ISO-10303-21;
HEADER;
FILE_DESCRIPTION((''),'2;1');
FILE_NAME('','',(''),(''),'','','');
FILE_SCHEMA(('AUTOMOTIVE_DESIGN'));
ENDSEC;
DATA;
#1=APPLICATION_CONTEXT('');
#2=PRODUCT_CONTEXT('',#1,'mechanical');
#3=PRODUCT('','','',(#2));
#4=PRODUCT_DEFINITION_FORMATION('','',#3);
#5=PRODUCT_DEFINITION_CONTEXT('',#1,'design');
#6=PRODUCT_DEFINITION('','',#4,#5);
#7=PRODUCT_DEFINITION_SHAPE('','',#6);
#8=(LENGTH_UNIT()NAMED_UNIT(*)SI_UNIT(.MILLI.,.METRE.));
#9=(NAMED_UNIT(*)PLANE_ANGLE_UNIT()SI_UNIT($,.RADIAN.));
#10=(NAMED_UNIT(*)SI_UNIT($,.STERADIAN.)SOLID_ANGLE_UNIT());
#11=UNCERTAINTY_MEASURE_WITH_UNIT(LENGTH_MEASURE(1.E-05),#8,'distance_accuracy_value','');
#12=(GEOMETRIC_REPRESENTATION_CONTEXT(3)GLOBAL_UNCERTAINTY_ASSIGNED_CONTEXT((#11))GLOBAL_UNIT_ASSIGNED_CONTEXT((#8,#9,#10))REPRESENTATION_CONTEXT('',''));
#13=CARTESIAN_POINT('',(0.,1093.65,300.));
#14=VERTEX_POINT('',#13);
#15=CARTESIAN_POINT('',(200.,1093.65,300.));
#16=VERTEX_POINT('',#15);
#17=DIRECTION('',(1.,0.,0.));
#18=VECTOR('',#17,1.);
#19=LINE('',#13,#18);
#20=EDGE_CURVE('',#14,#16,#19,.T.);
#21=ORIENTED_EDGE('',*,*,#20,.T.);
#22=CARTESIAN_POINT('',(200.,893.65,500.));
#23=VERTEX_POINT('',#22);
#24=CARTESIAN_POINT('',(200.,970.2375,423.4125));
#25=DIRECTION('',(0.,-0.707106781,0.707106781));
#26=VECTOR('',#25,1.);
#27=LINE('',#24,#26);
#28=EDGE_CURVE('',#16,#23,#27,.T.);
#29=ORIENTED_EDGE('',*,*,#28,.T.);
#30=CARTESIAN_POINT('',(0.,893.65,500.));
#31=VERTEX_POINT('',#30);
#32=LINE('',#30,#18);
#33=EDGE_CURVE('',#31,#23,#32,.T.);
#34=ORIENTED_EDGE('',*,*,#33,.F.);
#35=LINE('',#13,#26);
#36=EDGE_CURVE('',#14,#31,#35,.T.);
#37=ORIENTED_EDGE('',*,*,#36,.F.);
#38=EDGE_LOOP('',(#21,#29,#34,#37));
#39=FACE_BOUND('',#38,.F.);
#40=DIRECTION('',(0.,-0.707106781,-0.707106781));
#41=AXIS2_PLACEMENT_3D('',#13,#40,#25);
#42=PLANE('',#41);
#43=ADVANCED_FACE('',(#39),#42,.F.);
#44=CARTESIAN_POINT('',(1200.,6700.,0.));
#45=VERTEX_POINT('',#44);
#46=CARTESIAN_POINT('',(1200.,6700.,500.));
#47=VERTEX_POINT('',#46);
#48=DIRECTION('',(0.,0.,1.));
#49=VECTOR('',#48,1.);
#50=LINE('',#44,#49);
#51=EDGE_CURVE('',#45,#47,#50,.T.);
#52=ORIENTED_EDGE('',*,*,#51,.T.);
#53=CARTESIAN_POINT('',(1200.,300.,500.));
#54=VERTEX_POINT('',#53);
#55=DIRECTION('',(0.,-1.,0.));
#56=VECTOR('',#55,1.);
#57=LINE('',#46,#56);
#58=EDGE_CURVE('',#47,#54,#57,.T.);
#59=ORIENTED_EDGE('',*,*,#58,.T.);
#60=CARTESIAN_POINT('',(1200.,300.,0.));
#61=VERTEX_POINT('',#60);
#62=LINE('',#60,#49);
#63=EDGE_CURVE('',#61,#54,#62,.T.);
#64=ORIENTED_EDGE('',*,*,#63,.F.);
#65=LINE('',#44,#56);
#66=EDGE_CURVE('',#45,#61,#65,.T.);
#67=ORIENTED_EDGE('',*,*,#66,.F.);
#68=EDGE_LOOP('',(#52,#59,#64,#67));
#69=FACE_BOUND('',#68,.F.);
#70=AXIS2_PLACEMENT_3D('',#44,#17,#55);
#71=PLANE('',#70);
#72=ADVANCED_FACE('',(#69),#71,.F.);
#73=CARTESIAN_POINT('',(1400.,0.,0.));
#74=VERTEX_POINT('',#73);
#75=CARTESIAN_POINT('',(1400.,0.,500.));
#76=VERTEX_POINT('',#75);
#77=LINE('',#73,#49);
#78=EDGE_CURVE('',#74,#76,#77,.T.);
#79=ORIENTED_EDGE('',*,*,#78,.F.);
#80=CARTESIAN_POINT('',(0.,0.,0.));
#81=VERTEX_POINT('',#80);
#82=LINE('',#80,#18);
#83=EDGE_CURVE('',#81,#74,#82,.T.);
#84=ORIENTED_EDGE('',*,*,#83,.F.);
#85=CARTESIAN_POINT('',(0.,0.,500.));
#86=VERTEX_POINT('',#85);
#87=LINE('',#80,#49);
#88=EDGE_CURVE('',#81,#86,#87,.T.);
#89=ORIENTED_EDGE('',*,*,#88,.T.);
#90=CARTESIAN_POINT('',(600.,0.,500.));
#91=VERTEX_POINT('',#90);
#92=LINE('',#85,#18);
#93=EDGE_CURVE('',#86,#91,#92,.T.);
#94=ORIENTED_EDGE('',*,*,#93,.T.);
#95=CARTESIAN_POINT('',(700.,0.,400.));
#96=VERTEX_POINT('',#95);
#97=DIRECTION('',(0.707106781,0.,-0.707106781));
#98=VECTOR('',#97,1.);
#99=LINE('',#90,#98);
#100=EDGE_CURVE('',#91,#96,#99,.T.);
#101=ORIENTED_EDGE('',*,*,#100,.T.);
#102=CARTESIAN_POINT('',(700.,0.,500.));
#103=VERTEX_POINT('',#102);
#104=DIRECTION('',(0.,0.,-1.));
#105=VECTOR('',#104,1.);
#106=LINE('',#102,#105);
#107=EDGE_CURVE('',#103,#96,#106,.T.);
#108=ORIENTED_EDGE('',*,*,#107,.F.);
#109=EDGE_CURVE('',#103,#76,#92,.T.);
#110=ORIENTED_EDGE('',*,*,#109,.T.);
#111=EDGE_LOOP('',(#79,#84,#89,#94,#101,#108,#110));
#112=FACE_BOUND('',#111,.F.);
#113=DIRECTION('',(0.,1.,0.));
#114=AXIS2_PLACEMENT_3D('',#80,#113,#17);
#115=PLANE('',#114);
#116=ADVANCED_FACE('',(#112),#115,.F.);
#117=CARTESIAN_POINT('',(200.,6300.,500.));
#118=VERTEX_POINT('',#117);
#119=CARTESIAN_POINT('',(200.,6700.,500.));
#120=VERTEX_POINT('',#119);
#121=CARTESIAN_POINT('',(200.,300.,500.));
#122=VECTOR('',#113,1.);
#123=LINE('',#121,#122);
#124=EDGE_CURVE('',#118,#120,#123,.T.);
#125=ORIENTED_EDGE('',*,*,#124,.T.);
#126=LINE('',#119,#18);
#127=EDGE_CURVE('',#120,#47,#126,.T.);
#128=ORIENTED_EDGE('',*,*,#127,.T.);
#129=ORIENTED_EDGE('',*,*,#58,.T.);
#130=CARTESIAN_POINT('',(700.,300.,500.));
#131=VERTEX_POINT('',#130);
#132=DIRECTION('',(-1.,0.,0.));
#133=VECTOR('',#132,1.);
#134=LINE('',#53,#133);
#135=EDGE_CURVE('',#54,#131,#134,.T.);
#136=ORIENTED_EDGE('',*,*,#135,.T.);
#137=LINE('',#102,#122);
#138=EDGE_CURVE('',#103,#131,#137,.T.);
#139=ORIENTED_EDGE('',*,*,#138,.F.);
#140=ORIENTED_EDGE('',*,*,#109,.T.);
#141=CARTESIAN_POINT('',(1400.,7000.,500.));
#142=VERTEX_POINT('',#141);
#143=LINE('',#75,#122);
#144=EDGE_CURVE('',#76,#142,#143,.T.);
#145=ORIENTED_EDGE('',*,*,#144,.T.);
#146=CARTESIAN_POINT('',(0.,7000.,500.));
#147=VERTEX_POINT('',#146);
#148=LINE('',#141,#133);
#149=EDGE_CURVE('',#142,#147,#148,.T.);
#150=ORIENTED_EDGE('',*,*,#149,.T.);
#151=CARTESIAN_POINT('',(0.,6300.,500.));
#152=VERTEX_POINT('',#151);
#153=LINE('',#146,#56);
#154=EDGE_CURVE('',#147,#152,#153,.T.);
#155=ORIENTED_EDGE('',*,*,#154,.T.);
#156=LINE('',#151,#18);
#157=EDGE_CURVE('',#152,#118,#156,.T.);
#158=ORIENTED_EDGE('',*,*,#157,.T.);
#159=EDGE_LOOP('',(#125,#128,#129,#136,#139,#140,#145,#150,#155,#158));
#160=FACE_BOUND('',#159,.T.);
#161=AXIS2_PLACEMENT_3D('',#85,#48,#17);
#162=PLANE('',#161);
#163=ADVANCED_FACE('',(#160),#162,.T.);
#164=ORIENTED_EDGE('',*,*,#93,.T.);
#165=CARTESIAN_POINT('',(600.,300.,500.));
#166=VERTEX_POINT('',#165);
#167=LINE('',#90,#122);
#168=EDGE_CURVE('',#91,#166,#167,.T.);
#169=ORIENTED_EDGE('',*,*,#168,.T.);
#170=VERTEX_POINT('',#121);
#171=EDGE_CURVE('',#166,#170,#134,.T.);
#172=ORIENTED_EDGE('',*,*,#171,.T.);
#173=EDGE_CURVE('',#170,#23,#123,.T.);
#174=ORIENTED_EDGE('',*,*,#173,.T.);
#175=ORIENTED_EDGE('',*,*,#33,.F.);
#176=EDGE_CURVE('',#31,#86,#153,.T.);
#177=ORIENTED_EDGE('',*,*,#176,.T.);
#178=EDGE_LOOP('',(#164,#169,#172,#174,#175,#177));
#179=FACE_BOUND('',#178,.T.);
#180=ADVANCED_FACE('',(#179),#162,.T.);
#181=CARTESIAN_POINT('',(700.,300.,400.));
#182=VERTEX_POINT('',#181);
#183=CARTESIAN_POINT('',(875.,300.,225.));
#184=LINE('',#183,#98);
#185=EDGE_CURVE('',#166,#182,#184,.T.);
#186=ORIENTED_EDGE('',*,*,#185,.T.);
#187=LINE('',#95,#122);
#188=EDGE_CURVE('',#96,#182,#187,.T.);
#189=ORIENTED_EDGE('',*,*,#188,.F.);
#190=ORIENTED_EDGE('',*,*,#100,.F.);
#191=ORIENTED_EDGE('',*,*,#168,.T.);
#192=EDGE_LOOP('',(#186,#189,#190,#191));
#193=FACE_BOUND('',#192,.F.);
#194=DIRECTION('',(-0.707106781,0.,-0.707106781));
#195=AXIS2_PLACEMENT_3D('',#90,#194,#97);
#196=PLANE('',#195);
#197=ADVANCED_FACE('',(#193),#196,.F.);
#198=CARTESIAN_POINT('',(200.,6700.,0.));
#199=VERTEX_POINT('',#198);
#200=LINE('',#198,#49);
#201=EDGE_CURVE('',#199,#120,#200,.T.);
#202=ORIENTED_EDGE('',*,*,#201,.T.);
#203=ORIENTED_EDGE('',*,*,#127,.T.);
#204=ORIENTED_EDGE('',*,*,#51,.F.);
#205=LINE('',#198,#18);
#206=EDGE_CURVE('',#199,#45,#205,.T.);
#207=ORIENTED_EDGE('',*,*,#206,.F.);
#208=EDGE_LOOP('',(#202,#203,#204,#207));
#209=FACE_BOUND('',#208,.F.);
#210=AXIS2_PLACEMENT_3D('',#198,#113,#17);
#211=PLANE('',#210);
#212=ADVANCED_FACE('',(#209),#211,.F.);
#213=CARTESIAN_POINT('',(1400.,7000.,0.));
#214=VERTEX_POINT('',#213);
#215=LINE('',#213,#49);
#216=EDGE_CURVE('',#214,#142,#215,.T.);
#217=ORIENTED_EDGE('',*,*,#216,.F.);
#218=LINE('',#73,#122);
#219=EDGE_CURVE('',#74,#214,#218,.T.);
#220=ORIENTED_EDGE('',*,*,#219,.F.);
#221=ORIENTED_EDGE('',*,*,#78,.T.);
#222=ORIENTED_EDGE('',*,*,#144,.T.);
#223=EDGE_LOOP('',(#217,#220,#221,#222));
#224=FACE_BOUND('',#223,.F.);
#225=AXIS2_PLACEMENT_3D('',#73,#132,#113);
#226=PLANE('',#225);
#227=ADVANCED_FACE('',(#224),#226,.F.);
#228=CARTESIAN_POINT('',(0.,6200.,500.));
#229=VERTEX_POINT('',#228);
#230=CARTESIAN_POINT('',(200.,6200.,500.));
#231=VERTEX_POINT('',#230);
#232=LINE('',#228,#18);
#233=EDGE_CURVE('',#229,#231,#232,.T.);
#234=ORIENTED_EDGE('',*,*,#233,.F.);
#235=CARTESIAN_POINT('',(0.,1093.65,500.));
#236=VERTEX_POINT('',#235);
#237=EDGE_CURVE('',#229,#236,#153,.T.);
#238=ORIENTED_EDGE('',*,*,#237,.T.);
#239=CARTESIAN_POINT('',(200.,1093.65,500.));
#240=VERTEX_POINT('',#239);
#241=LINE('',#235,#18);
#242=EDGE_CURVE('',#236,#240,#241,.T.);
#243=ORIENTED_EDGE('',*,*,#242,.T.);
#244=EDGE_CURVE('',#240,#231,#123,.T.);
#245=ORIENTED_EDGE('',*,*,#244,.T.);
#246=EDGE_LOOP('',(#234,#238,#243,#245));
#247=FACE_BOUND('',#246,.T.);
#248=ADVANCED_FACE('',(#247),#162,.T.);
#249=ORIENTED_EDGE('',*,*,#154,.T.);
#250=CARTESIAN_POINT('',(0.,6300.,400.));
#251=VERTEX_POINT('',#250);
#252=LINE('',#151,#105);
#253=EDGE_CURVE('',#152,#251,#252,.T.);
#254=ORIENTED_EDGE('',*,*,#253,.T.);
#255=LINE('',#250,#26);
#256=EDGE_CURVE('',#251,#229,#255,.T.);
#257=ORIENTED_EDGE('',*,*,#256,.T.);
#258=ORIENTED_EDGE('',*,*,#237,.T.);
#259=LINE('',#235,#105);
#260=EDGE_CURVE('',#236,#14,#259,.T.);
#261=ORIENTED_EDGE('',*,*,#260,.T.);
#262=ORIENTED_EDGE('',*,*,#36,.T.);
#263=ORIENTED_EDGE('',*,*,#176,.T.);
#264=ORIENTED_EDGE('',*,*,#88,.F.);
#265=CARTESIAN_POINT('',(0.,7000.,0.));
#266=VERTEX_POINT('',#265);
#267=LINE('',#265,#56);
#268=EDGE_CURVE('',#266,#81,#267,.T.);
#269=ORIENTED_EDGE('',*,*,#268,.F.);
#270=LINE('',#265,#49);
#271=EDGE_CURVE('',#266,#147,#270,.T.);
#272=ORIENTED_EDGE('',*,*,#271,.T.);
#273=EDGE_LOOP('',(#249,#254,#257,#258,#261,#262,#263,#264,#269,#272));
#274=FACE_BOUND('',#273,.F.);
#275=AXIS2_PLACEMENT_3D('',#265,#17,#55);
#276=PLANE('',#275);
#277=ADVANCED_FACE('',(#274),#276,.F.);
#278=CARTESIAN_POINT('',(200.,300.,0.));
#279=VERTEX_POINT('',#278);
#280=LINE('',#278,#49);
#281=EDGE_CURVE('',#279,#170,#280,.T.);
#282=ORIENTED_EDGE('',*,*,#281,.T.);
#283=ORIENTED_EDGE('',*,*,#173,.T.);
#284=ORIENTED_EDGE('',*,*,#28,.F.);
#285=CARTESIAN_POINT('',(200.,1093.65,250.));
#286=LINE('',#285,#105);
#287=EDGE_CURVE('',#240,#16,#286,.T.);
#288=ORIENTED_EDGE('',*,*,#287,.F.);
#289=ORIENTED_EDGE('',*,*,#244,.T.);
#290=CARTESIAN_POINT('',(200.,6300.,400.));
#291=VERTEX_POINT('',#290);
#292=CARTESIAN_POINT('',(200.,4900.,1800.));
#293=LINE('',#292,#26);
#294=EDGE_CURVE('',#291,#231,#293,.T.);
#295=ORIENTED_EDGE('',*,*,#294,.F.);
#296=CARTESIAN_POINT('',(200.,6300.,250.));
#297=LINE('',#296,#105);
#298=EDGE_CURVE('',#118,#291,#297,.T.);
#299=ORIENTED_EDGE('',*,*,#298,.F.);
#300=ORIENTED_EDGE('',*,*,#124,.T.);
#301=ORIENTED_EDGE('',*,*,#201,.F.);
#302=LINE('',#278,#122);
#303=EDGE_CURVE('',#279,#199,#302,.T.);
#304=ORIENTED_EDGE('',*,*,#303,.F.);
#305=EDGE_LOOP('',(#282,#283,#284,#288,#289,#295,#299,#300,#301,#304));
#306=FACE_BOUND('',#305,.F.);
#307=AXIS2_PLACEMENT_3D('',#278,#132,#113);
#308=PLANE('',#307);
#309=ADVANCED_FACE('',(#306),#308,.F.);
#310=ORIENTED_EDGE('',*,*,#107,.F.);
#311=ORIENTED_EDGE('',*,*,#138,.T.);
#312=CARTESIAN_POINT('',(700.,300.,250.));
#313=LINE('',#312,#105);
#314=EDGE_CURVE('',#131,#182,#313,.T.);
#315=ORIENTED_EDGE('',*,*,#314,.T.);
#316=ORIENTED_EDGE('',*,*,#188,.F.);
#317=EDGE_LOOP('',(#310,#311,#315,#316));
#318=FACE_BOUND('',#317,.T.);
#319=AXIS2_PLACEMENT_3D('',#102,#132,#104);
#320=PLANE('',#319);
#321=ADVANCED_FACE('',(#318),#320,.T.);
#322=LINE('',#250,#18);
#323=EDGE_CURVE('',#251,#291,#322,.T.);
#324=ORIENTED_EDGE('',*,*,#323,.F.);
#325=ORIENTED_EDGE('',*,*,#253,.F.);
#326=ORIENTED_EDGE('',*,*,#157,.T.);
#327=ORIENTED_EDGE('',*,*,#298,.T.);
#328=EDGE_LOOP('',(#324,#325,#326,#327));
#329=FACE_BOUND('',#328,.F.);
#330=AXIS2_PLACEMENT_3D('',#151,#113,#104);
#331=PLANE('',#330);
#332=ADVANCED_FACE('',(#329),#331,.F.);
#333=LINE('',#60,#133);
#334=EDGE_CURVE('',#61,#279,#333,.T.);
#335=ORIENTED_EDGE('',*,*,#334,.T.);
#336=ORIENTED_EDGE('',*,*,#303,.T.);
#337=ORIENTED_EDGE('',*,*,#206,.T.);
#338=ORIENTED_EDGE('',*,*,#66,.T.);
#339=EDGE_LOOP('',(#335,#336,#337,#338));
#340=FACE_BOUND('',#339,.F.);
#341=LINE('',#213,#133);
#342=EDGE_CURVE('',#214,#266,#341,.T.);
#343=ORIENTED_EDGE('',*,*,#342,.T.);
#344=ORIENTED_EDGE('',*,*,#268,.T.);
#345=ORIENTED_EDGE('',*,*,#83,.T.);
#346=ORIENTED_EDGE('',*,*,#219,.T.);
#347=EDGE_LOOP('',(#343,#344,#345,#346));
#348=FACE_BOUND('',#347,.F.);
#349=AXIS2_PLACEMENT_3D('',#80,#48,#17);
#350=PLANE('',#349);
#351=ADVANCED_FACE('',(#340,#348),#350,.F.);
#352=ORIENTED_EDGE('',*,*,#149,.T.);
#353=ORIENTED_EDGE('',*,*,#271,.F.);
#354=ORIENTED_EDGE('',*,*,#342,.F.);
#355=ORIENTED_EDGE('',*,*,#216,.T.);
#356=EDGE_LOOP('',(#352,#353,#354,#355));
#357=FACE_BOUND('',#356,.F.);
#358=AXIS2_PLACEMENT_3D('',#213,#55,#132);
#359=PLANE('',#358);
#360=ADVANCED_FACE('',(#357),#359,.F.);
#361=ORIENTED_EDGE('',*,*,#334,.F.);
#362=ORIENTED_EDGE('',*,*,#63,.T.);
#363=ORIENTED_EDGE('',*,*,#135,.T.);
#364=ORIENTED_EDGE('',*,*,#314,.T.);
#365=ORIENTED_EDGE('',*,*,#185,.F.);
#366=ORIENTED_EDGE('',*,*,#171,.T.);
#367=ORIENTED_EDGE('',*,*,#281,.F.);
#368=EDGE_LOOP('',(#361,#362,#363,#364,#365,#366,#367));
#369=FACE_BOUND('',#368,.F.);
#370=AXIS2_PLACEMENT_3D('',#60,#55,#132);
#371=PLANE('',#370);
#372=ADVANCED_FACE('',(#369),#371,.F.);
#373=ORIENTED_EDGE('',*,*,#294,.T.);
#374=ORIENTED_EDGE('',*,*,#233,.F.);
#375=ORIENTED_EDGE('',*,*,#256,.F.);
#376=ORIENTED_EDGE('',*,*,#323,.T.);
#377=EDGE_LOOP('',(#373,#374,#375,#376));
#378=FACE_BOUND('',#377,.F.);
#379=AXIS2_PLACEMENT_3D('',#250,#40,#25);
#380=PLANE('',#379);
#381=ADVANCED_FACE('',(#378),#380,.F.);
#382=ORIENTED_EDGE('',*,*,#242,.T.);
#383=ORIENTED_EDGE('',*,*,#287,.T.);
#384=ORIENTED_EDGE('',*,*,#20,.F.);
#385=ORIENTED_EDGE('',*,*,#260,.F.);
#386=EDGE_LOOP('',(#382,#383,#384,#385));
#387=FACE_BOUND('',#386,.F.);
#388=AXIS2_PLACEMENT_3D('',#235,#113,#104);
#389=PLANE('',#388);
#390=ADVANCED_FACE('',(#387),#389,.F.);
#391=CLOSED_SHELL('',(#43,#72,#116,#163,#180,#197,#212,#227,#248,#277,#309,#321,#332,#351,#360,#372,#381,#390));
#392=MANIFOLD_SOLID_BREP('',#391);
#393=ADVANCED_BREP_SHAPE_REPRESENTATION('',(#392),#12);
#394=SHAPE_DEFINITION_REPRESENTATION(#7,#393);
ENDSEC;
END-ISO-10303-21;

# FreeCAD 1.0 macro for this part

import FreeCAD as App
import Part
import Sketcher


def add_polygon(sketch, points):
    """Adds a closed chain of lines whose ends are joined by coincident constraints."""
    first, n = sketch.GeometryCount, len(points)
    for a, b in zip(points, points[1:] + points[:1]):
        sketch.addGeometry(Part.LineSegment(App.Vector(*a, 0), App.Vector(*b, 0)), False)
    for i in range(n):
        sketch.addConstraint(Sketcher.Constraint("Coincident", first + i, 2, first + (i + 1) % n, 1))

doc = App.newDocument("Part")
body = doc.addObject("PartDesign::Body", "Body")

sketch1 = body.newObject("Sketcher::SketchObject", "Sketch")
sketch1.AttachmentSupport = (doc.getObject("XY_Plane"), [""])
sketch1.MapMode = "FlatFace"
add_polygon(sketch1, [(0, 7000), (0, 0), (1400, 0), (1400, 7000)])
add_polygon(sketch1, [(200, 300), (200, 6700), (1200, 6700), (1200, 300)])
sketch1.addConstraint(Sketcher.Constraint("Vertical", 0))
sketch1.addConstraint(Sketcher.Constraint("Horizontal", 1))
sketch1.addConstraint(Sketcher.Constraint("Vertical", 2))
sketch1.addConstraint(Sketcher.Constraint("Horizontal", 3))
sketch1.addConstraint(Sketcher.Constraint("Vertical", 4))
sketch1.addConstraint(Sketcher.Constraint("Horizontal", 5))
sketch1.addConstraint(Sketcher.Constraint("Vertical", 6))
sketch1.addConstraint(Sketcher.Constraint("Horizontal", 7))
sketch1.addConstraint(Sketcher.Constraint("Coincident", 0, 2, -1, 1))
sketch1.addConstraint(Sketcher.Constraint("DistanceX", 5, 1, 5, 2, 1000.0))
sketch1.addConstraint(Sketcher.Constraint("DistanceY", 0, 2, 0, 1, 7000.0))
sketch1.addConstraint(Sketcher.Constraint("DistanceX", -1, 1, 4, 2, 200.0))
sketch1.addConstraint(Sketcher.Constraint("DistanceY", -1, 1, 6, 2, 300.0))
sketch1.addConstraint(Sketcher.Constraint("DistanceY", 4, 2, 3, 2, 300.0))
sketch1.addConstraint(Sketcher.Constraint("DistanceX", 5, 2, 2, 2, 200.0))
pad1 = body.newObject("PartDesign::Pad", "Pad")
pad1.Profile = sketch1
pad1.Length = 500

sketch2 = body.newObject("Sketcher::SketchObject", "Sketch001")
sketch2.AttachmentSupport = (doc.getObject("YZ_Plane"), [""])
sketch2.MapMode = "FlatFace"
add_polygon(sketch2, [(6200, 500), (6300, 500), (6300, 400)])
add_polygon(sketch2, [(894, 500), (1094, 500), (1094, 300)])
sketch2.addConstraint(Sketcher.Constraint("Horizontal", 0))
sketch2.addConstraint(Sketcher.Constraint("Vertical", 1))
sketch2.addConstraint(Sketcher.Constraint("Horizontal", 3))
sketch2.addConstraint(Sketcher.Constraint("Vertical", 4))
sketch2.addConstraint(Sketcher.Constraint("Parallel", 2, 5))
sketch2.addConstraint(Sketcher.Constraint("Horizontal", 2, 2, 3, 2))
sketch2.addConstraint(Sketcher.Constraint("Equal", 0, 1))
sketch2.addConstraint(Sketcher.Constraint("DistanceX", 0, 1, 0, 2, 100.0))
sketch2.addConstraint(Sketcher.Constraint("DistanceX", 3, 1, 3, 2, 200.0))
sketch2.addConstraint(Sketcher.Constraint("DistanceX", 3, 2, 0, 2, 5206.35))
sketch2.addConstraint(Sketcher.Constraint("DistanceX", -1, 1, 0, 2, 6300.0))
sketch2.addConstraint(Sketcher.Constraint("DistanceY", -1, 1, 0, 2, 500.0))
pocket1 = body.newObject("PartDesign::Pocket", "Pocket")
pocket1.Profile = sketch2
pocket1.Length = 293.5
pocket1.Reversed = True

sketch3 = body.newObject("Sketcher::SketchObject", "Sketch002")
sketch3.AttachmentSupport = (doc.getObject("XZ_Plane"), [""])
sketch3.MapMode = "FlatFace"
add_polygon(sketch3, [(700, 500), (600, 500), (700, 400)])
sketch3.addConstraint(Sketcher.Constraint("Horizontal", 0))
sketch3.addConstraint(Sketcher.Constraint("Vertical", 2))
sketch3.addConstraint(Sketcher.Constraint("Equal", 0, 2))
sketch3.addConstraint(Sketcher.Constraint("DistanceX", 0, 2, 0, 1, 100.0))
sketch3.addConstraint(Sketcher.Constraint("DistanceX", -1, 1, 0, 2, 600.0))
sketch3.addConstraint(Sketcher.Constraint("DistanceY", -1, 1, 0, 2, 500.0))
pocket2 = body.newObject("PartDesign::Pocket", "Pocket001")
pocket2.Profile = sketch3
pocket2.Length = 358

doc.recompute()
